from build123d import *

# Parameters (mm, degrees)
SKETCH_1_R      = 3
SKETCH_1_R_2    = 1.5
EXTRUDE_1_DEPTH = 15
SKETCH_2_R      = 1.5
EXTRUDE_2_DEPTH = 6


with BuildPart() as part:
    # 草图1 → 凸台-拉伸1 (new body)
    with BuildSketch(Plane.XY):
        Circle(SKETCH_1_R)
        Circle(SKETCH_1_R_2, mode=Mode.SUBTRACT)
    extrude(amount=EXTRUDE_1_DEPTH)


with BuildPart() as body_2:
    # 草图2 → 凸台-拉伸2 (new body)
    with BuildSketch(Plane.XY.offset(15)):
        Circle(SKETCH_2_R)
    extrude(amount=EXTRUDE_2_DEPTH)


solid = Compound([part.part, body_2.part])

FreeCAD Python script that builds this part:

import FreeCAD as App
import Part
import Sketcher
from FreeCAD import Vector

doc = App.newDocument("Part")
body = doc.addObject("PartDesign::Body", "Body")

sketch1 = doc.addObject("Sketcher::SketchObject", "Sketch")
body.addObject(sketch1)
sketch1.AttachmentSupport = (doc.XY_Plane, [""])
sketch1.MapMode = "FlatFace"
sketch1.addGeometry(Part.Circle(Vector(0, 0, 0), Vector(0, 0, 1), 3), False)
sketch1.addGeometry(Part.Circle(Vector(0, 0, 0), Vector(0, 0, 1), 1.5), False)
sketch1.addConstraint(Sketcher.Constraint("Coincident", 0, 3, -1, 1))
sketch1.addConstraint(Sketcher.Constraint("Coincident", 1, 3, -1, 1))
sketch1.addConstraint(Sketcher.Constraint("Diameter", 0, 6.0))
sketch1.addConstraint(Sketcher.Constraint("Diameter", 1, 3.0))
pad1 = doc.addObject("PartDesign::Pad", "Pad")
body.addObject(pad1)
pad1.Profile = sketch1
pad1.Length = 15
body2 = doc.addObject("PartDesign::Body", "Body001")

sketch2 = doc.addObject("Sketcher::SketchObject", "Sketch001")
body2.addObject(sketch2)
sketch2.AttachmentSupport = (doc.getObject("XY_Plane001"), [""])
sketch2.MapMode = "FlatFace"
sketch2.AttachmentOffset = App.Placement(Vector(0, 0, 15), App.Rotation())
sketch2.addGeometry(Part.Circle(Vector(0, 0, 0), Vector(0, 0, 1), 1.5), False)
sketch2.addConstraint(Sketcher.Constraint("Coincident", 0, 3, -1, 1))
sketch2.addConstraint(Sketcher.Constraint("Diameter", 0, 3.0))
pad2 = doc.addObject("PartDesign::Pad", "Pad001")
body2.addObject(pad2)
pad2.Profile = sketch2
pad2.Length = 6

doc.recompute()
